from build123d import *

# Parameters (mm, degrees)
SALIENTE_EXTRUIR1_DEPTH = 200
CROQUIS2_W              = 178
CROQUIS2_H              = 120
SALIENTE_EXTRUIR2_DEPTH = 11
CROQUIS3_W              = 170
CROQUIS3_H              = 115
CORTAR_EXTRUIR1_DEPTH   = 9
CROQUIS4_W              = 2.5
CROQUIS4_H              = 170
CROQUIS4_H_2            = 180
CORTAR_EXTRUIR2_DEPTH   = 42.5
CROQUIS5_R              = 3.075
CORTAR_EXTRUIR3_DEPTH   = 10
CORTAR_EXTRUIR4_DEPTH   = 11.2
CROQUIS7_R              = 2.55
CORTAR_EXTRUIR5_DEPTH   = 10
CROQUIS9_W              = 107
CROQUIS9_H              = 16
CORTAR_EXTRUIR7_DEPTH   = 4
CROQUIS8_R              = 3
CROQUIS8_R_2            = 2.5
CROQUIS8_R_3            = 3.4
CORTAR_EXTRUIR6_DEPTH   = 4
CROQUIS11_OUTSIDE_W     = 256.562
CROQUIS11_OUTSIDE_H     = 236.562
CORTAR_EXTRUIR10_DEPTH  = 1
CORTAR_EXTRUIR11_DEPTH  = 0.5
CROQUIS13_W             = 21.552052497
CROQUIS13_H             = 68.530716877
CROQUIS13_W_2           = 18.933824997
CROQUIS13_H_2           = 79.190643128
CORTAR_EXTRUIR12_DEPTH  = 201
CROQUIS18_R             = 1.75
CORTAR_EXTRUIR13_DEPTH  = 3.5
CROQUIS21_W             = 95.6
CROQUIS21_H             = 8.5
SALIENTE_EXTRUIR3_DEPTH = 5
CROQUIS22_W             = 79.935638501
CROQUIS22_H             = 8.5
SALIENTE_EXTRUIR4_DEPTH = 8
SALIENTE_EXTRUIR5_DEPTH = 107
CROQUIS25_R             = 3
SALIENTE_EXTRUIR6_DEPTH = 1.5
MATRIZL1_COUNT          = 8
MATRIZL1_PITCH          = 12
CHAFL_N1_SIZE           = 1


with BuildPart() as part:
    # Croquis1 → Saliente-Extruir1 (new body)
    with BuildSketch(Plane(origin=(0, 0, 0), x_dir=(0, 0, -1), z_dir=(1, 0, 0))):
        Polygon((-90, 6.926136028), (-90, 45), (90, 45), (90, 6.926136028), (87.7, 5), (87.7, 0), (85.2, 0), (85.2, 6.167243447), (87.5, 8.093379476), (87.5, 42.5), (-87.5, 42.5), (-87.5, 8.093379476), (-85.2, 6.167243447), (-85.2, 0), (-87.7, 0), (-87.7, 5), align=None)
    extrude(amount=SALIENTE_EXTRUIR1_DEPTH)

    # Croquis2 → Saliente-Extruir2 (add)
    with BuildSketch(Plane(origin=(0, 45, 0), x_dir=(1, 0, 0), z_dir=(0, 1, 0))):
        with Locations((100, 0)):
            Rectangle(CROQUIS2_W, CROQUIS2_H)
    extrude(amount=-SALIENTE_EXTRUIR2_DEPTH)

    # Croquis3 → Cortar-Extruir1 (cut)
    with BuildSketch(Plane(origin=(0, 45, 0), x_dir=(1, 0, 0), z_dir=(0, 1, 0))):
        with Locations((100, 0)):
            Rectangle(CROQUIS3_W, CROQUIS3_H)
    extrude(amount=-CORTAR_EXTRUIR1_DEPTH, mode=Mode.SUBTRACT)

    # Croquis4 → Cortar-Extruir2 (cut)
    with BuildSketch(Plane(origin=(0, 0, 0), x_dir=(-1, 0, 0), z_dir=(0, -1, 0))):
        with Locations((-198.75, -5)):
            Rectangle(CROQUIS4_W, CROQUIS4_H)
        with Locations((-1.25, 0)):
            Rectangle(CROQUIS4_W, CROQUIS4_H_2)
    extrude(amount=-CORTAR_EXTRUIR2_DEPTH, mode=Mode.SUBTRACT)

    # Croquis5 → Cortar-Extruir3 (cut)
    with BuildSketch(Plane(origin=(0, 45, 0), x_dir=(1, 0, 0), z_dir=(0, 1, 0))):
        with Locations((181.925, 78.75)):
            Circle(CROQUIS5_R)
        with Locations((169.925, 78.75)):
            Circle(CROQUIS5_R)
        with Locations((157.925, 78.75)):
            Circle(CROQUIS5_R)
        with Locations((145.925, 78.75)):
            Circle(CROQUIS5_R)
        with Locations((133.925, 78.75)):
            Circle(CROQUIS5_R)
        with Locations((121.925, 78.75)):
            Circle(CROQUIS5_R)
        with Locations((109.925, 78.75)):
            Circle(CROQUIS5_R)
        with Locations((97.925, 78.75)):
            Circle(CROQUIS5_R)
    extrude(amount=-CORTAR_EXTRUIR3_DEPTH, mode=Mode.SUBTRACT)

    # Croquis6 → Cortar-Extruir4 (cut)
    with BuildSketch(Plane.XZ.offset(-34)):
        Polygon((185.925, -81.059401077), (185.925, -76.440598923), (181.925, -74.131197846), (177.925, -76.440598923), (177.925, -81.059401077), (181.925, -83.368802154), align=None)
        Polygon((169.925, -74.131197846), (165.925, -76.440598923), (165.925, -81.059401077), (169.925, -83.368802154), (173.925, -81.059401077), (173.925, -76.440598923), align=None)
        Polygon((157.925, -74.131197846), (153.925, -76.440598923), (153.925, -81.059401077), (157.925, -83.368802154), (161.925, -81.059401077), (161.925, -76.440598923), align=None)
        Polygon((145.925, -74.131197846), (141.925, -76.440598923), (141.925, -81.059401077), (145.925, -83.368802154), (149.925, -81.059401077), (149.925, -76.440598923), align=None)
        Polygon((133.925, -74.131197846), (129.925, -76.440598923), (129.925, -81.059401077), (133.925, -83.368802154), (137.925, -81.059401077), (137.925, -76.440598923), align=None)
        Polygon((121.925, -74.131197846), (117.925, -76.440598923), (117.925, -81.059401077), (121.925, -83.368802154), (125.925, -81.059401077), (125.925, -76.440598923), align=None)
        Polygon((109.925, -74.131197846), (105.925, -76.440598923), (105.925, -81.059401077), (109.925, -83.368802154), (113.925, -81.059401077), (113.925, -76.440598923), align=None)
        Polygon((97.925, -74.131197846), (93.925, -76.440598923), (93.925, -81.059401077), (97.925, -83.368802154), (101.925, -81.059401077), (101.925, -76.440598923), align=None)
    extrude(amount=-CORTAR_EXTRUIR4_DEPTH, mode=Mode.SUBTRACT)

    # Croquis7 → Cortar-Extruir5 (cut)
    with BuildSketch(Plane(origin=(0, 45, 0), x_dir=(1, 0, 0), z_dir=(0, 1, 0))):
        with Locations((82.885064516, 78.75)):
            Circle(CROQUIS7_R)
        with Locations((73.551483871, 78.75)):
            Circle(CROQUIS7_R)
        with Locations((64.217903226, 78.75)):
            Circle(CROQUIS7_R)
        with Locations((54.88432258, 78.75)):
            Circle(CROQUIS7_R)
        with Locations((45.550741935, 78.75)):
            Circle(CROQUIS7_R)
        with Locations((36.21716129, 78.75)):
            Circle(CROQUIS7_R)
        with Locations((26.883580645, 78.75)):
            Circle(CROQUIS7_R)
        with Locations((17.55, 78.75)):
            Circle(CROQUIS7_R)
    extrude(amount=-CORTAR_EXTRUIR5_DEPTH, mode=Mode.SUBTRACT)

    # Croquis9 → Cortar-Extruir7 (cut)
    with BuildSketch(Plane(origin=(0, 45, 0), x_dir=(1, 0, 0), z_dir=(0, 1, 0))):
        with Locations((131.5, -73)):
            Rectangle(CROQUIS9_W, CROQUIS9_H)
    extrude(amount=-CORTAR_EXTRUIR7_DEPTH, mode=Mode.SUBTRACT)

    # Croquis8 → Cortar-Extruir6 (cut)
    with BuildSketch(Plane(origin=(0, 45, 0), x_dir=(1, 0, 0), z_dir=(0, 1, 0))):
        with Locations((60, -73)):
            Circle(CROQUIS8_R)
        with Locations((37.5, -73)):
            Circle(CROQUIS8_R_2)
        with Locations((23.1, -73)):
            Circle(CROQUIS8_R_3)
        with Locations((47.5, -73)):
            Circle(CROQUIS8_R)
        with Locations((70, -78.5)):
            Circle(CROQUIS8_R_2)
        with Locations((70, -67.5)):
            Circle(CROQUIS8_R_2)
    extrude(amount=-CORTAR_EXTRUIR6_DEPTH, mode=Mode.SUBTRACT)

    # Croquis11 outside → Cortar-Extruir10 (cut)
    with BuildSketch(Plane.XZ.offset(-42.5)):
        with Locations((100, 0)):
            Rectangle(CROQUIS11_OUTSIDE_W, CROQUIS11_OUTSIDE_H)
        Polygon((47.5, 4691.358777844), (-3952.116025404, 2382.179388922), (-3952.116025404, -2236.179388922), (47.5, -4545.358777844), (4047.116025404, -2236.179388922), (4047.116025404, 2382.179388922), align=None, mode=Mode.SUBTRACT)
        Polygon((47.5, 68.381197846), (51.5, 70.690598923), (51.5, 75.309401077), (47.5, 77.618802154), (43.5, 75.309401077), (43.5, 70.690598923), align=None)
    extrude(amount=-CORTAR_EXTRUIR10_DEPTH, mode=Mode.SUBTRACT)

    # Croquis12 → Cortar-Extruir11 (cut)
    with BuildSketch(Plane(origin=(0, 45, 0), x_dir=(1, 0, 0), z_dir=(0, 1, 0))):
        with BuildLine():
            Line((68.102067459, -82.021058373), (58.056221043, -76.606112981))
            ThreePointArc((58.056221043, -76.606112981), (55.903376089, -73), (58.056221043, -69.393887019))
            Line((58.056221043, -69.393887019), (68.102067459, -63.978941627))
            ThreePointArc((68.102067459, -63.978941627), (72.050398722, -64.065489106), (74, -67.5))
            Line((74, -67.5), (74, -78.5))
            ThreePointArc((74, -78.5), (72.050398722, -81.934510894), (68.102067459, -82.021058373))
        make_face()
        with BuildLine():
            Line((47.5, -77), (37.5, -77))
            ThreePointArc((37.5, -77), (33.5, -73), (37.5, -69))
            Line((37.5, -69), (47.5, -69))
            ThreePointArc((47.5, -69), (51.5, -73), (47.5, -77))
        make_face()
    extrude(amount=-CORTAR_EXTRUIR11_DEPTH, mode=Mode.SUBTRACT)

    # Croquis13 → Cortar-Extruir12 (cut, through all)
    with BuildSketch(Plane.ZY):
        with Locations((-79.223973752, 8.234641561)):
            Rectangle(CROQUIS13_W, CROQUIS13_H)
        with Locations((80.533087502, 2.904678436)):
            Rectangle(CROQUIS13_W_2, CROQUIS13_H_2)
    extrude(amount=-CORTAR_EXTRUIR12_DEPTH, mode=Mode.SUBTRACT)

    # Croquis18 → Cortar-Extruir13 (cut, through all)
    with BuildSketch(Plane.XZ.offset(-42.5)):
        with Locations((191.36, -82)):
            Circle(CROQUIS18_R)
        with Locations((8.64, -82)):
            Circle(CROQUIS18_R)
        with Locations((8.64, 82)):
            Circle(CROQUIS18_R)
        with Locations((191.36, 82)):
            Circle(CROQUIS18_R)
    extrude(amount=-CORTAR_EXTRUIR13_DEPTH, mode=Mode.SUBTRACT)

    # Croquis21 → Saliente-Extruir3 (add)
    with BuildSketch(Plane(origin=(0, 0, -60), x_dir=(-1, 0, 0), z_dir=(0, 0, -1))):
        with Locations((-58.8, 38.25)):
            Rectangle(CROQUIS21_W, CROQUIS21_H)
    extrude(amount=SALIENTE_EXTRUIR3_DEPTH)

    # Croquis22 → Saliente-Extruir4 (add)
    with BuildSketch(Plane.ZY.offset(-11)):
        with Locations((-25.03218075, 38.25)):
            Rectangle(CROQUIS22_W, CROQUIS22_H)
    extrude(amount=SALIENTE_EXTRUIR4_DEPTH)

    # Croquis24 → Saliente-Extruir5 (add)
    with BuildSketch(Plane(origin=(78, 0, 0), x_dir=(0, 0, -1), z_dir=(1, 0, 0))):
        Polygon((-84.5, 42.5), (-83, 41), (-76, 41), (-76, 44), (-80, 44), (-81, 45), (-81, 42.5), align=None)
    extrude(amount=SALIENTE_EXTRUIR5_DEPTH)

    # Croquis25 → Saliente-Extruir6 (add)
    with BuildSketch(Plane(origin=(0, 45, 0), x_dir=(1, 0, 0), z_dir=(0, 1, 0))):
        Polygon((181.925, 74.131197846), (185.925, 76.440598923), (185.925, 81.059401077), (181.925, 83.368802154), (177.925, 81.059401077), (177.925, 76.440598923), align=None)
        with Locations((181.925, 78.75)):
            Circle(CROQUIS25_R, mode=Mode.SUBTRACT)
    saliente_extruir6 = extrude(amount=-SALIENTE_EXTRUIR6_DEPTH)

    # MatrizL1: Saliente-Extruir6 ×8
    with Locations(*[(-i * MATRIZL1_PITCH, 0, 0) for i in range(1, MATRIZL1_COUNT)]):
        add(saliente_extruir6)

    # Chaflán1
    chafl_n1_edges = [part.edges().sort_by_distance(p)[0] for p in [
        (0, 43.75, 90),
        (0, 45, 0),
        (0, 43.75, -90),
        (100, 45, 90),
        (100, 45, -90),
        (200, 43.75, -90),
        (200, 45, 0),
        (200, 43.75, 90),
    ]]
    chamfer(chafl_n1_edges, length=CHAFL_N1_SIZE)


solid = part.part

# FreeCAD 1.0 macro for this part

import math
import FreeCAD as App
import Part
import Sketcher
Q = App.Units.Quantity


def edges_at(feature, points):
    """Names of the edges that pass closest to the given points."""
    edges = feature.Shape.Edges
    near = lambda p: min(range(len(edges)), key=lambda i: edges[i].distToShape(Part.Vertex(*p))[0])
    return sorted({f"Edge{near(p) + 1}" for p in points})

doc = App.newDocument("Part")
body = doc.addObject("PartDesign::Body", "Body")

sketch1 = doc.addObject("Sketcher::SketchObject", "Sketch")
body.addObject(sketch1)
sketch1.AttachmentSupport = (doc.YZ_Plane, [""])
sketch1.MapMode = "FlatFace"
sketch1.addGeometry([
    Part.LineSegment(App.Vector(45, 90, 0), App.Vector(6.9, 90, 0)),
    Part.LineSegment(App.Vector(6.9, 90, 0), App.Vector(5, 87.7, 0)),
    Part.LineSegment(App.Vector(5, 87.7, 0), App.Vector(0, 87.7, 0)),
    Part.LineSegment(App.Vector(0, 87.7, 0), App.Vector(0, 85.2, 0)),
    Part.LineSegment(App.Vector(0, 85.2, 0), App.Vector(6.2, 85.2, 0)),
    Part.LineSegment(App.Vector(6.2, 85.2, 0), App.Vector(8.1, 87.5, 0)),
    Part.LineSegment(App.Vector(8.1, 87.5, 0), App.Vector(42.5, 87.5, 0)),
    Part.LineSegment(App.Vector(42.5, 87.5, 0), App.Vector(42.5, -87.5, 0)),
    Part.LineSegment(App.Vector(42.5, -87.5, 0), App.Vector(8.1, -87.5, 0)),
    Part.LineSegment(App.Vector(8.1, -87.5, 0), App.Vector(6.2, -85.2, 0)),
    Part.LineSegment(App.Vector(6.2, -85.2, 0), App.Vector(0, -85.2, 0)),
    Part.LineSegment(App.Vector(0, -85.2, 0), App.Vector(0, -87.7, 0)),
    Part.LineSegment(App.Vector(0, -87.7, 0), App.Vector(5, -87.7, 0)),
    Part.LineSegment(App.Vector(5, -87.7, 0), App.Vector(6.9, -90, 0)),
    Part.LineSegment(App.Vector(6.9, -90, 0), App.Vector(45, -90, 0)),
    Part.LineSegment(App.Vector(45, -90, 0), App.Vector(45, 90, 0)),
], False)
sketch1.addConstraint([
    Sketcher.Constraint("Coincident", 0, 2, 1, 1),
    Sketcher.Constraint("Coincident", 1, 2, 2, 1),
    Sketcher.Constraint("Coincident", 2, 2, 3, 1),
    Sketcher.Constraint("Coincident", 3, 2, 4, 1),
    Sketcher.Constraint("Coincident", 4, 2, 5, 1),
    Sketcher.Constraint("Coincident", 5, 2, 6, 1),
    Sketcher.Constraint("Coincident", 6, 2, 7, 1),
    Sketcher.Constraint("Coincident", 7, 2, 8, 1),
    Sketcher.Constraint("Coincident", 8, 2, 9, 1),
    Sketcher.Constraint("Coincident", 9, 2, 10, 1),
    Sketcher.Constraint("Coincident", 10, 2, 11, 1),
    Sketcher.Constraint("Coincident", 11, 2, 12, 1),
    Sketcher.Constraint("Coincident", 12, 2, 13, 1),
    Sketcher.Constraint("Coincident", 13, 2, 14, 1),
    Sketcher.Constraint("Coincident", 14, 2, 15, 1),
    Sketcher.Constraint("Coincident", 15, 2, 0, 1),
    Sketcher.Constraint("Horizontal", 0),
    Sketcher.Constraint("Horizontal", 2),
    Sketcher.Constraint("Vertical", 3),
    Sketcher.Constraint("Horizontal", 4),
    Sketcher.Constraint("Horizontal", 6),
    Sketcher.Constraint("Vertical", 7),
    Sketcher.Constraint("Horizontal", 8),
    Sketcher.Constraint("Horizontal", 10),
    Sketcher.Constraint("Vertical", 11),
    Sketcher.Constraint("Horizontal", 12),
    Sketcher.Constraint("Horizontal", 14),
    Sketcher.Constraint("Vertical", 15),
    Sketcher.Constraint("Symmetric", 3, 2, 10, 2, -1, 1),
    Sketcher.Constraint("Symmetric", 5, 2, 8, 2, -1),
    Sketcher.Constraint("Symmetric", 2, 2, 11, 2, -1),
    Sketcher.Constraint("Symmetric", 0, 2, 13, 2, -1),
    Sketcher.Constraint("Parallel", 1, 5),
    Sketcher.Constraint("Parallel", 9, 13),
    Sketcher.Constraint("Vertical", 4, 2, 9, 2),
    Sketcher.Constraint("Equal", 1, 5),
    Sketcher.Constraint("DistanceX", 2, 2, 2, 1, 5.0),
    Sketcher.Constraint("DistanceY", 7, 2, 7, 1, 175.0),
    Sketcher.Constraint("DistanceY", 15, 1, 15, 2, 180.0),
    Sketcher.Constraint("Distance", 1, 3.0),
    Sketcher.Constraint("DistanceX", -1, 1, 14, 2, 45.0),
    Sketcher.Constraint("DistanceY", -1, 1, 1, 2, 87.7),
    Sketcher.Constraint("DistanceX", -1, 1, 6, 2, 42.5),
    Sketcher.Constraint("DistanceX", 6, 1, 6, 2, 34.406621),
])
pad1 = doc.addObject("PartDesign::Pad", "Pad")
body.addObject(pad1)
pad1.Profile = sketch1
pad1.Length = 200

sketch2 = doc.addObject("Sketcher::SketchObject", "Sketch001")
body.addObject(sketch2)
sketch2.AttachmentSupport = (doc.XZ_Plane, [""])
sketch2.MapMode = "FlatFace"
sketch2.AttachmentOffset = App.Placement(App.Vector(0, 0, -45), App.Rotation())
sketch2.addGeometry([
    Part.LineSegment(App.Vector(11, -60, 0), App.Vector(11, 60, 0)),
    Part.LineSegment(App.Vector(11, 60, 0), App.Vector(189, 60, 0)),
    Part.LineSegment(App.Vector(189, 60, 0), App.Vector(189, -60, 0)),
    Part.LineSegment(App.Vector(189, -60, 0), App.Vector(11, -60, 0)),
], False)
sketch2.addConstraint([
    Sketcher.Constraint("Coincident", 0, 2, 1, 1),
    Sketcher.Constraint("Coincident", 1, 2, 2, 1),
    Sketcher.Constraint("Coincident", 2, 2, 3, 1),
    Sketcher.Constraint("Coincident", 3, 2, 0, 1),
    Sketcher.Constraint("Vertical", 0),
    Sketcher.Constraint("Horizontal", 1),
    Sketcher.Constraint("Vertical", 2),
    Sketcher.Constraint("Horizontal", 3),
    Sketcher.Constraint("DistanceX", 1, 1, 1, 2, 178.0),
    Sketcher.Constraint("DistanceY", 0, 1, 0, 2, 120.0),
    Sketcher.Constraint("DistanceX", -1, 1, 0, 2, 11.0),
    Sketcher.Constraint("DistanceY", -1, 1, 0, 2, 60.0),
])
pad2 = doc.addObject("PartDesign::Pad", "Pad001")
body.addObject(pad2)
pad2.Profile = sketch2
pad2.Length = 11

sketch3 = doc.addObject("Sketcher::SketchObject", "Sketch002")
body.addObject(sketch3)
sketch3.AttachmentSupport = (doc.XZ_Plane, [""])
sketch3.MapMode = "FlatFace"
sketch3.AttachmentOffset = App.Placement(App.Vector(0, 0, -45), App.Rotation())
sketch3.addGeometry([
    Part.LineSegment(App.Vector(15, -58, 0), App.Vector(15, 58, 0)),
    Part.LineSegment(App.Vector(15, 58, 0), App.Vector(185, 58, 0)),
    Part.LineSegment(App.Vector(185, 58, 0), App.Vector(185, -58, 0)),
    Part.LineSegment(App.Vector(185, -58, 0), App.Vector(15, -58, 0)),
], False)
sketch3.addConstraint([
    Sketcher.Constraint("Coincident", 0, 2, 1, 1),
    Sketcher.Constraint("Coincident", 1, 2, 2, 1),
    Sketcher.Constraint("Coincident", 2, 2, 3, 1),
    Sketcher.Constraint("Coincident", 3, 2, 0, 1),
    Sketcher.Constraint("Vertical", 0),
    Sketcher.Constraint("Horizontal", 1),
    Sketcher.Constraint("Vertical", 2),
    Sketcher.Constraint("Horizontal", 3),
    Sketcher.Constraint("DistanceX", 1, 1, 1, 2, 170.0),
    Sketcher.Constraint("DistanceY", 0, 1, 0, 2, 115.0),
    Sketcher.Constraint("DistanceX", -1, 1, 0, 2, 15.0),
    Sketcher.Constraint("DistanceY", -1, 1, 0, 2, 57.5),
])
pocket1 = doc.addObject("PartDesign::Pocket", "Pocket")
body.addObject(pocket1)
pocket1.Profile = sketch3
pocket1.Length = 9
pocket1.Reversed = True

sketch4 = doc.addObject("Sketcher::SketchObject", "Sketch003")
body.addObject(sketch4)
sketch4.AttachmentSupport = (doc.XZ_Plane, [""])
sketch4.MapMode = "FlatFace"
sketch4.addGeometry([
    Part.LineSegment(App.Vector(200, -80, 0), App.Vector(200, 90, 0)),
    Part.LineSegment(App.Vector(200, 90, 0), App.Vector(197.5, 90, 0)),
    Part.LineSegment(App.Vector(197.5, 90, 0), App.Vector(197.5, -80, 0)),
    Part.LineSegment(App.Vector(197.5, -80, 0), App.Vector(200, -80, 0)),
    Part.LineSegment(App.Vector(2.5, -90, 0), App.Vector(2.5, 90, 0)),
    Part.LineSegment(App.Vector(2.5, 90, 0), App.Vector(0, 90, 0)),
    Part.LineSegment(App.Vector(0, 90, 0), App.Vector(0, -90, 0)),
    Part.LineSegment(App.Vector(0, -90, 0), App.Vector(2.5, -90, 0)),
], False)
sketch4.addConstraint([
    Sketcher.Constraint("Coincident", 0, 2, 1, 1),
    Sketcher.Constraint("Coincident", 1, 2, 2, 1),
    Sketcher.Constraint("Coincident", 2, 2, 3, 1),
    Sketcher.Constraint("Coincident", 3, 2, 0, 1),
    Sketcher.Constraint("Coincident", 4, 2, 5, 1),
    Sketcher.Constraint("Coincident", 5, 2, 6, 1),
    Sketcher.Constraint("Coincident", 6, 2, 7, 1),
    Sketcher.Constraint("Coincident", 7, 2, 4, 1),
    Sketcher.Constraint("Vertical", 0),
    Sketcher.Constraint("Horizontal", 1),
    Sketcher.Constraint("Vertical", 2),
    Sketcher.Constraint("Horizontal", 3),
    Sketcher.Constraint("Vertical", 4),
    Sketcher.Constraint("Horizontal", 5),
    Sketcher.Constraint("Vertical", 6),
    Sketcher.Constraint("Horizontal", 7),
    Sketcher.Constraint("Symmetric", 5, 2, 6, 2, -1, 1),
    Sketcher.Constraint("Horizontal", 1, 2, 4, 2),
    Sketcher.Constraint("Equal", 3, 5),
    Sketcher.Constraint("DistanceY", 0, 1, 0, 2, 170.0),
    Sketcher.Constraint("DistanceY", 4, 1, 4, 2, 180.0),
    Sketcher.Constraint("DistanceX", 1, 2, 1, 1, 2.5),
    Sketcher.Constraint("DistanceX", -1, 1, 0, 2, 200.0),
])
pocket2 = doc.addObject("PartDesign::Pocket", "Pocket001")
body.addObject(pocket2)
pocket2.Profile = sketch4
pocket2.Length = 42.5

sketch5 = doc.addObject("Sketcher::SketchObject", "Sketch004")
body.addObject(sketch5)
sketch5.AttachmentSupport = (doc.XZ_Plane, [""])
sketch5.MapMode = "FlatFace"
sketch5.AttachmentOffset = App.Placement(App.Vector(0, 0, -45), App.Rotation())
sketch5.addGeometry([
    Part.Circle(App.Vector(181.9, -78.8, 0), App.Vector(0, 0, 1), 3.1),
    Part.Circle(App.Vector(169.9, -78.8, 0), App.Vector(0, 0, 1), 3.1),
    Part.Circle(App.Vector(157.9, -78.8, 0), App.Vector(0, 0, 1), 3.1),
    Part.Circle(App.Vector(145.9, -78.8, 0), App.Vector(0, 0, 1), 3.1),
    Part.Circle(App.Vector(133.9, -78.8, 0), App.Vector(0, 0, 1), 3.1),
    Part.Circle(App.Vector(121.9, -78.8, 0), App.Vector(0, 0, 1), 3.1),
    Part.Circle(App.Vector(109.9, -78.8, 0), App.Vector(0, 0, 1), 3.1),
    Part.Circle(App.Vector(97.9, -78.8, 0), App.Vector(0, 0, 1), 3.1),
], False)
sketch5.addConstraint([
    Sketcher.Constraint("Equal", 0, 1),
    Sketcher.Constraint("Equal", 1, 2),
    Sketcher.Constraint("Equal", 2, 3),
    Sketcher.Constraint("Equal", 3, 4),
    Sketcher.Constraint("Equal", 4, 5),
    Sketcher.Constraint("Equal", 5, 6),
    Sketcher.Constraint("Equal", 6, 7),
    Sketcher.Constraint("Horizontal", 0, 3, 1, 3),
    Sketcher.Constraint("Horizontal", 1, 3, 2, 3),
    Sketcher.Constraint("Horizontal", 2, 3, 3, 3),
    Sketcher.Constraint("Horizontal", 3, 3, 4, 3),
    Sketcher.Constraint("Horizontal", 4, 3, 5, 3),
    Sketcher.Constraint("Horizontal", 5, 3, 6, 3),
    Sketcher.Constraint("Horizontal", 6, 3, 7, 3),
    Sketcher.Constraint("Diameter", 0, 6.15),
    Sketcher.Constraint("DistanceX", 1, 3, 0, 3, 12.0),
    Sketcher.Constraint("DistanceX", 2, 3, 1, 3, 12.0),
    Sketcher.Constraint("DistanceX", 3, 3, 2, 3, 12.0),
    Sketcher.Constraint("DistanceX", 4, 3, 3, 3, 12.0),
    Sketcher.Constraint("DistanceX", 5, 3, 4, 3, 12.0),
    Sketcher.Constraint("DistanceX", 6, 3, 5, 3, 12.0),
    Sketcher.Constraint("DistanceX", 7, 3, 6, 3, 12.0),
    Sketcher.Constraint("DistanceY", 0, 3, -1, 1, 78.75),
    Sketcher.Constraint("DistanceX", -1, 1, 0, 3, 181.925),
])
pocket3 = doc.addObject("PartDesign::Pocket", "Pocket002")
body.addObject(pocket3)
pocket3.Profile = sketch5
pocket3.Length = 10
pocket3.Reversed = True

sketch6 = doc.addObject("Sketcher::SketchObject", "Sketch005")
body.addObject(sketch6)
sketch6.AttachmentSupport = (doc.XZ_Plane, [""])
sketch6.MapMode = "FlatFace"
sketch6.AttachmentOffset = App.Placement(App.Vector(0, 0, -34), App.Rotation())
sketch6.addGeometry([
    Part.LineSegment(App.Vector(185.9, -81.1, 0), App.Vector(185.9, -76.4, 0)),
    Part.LineSegment(App.Vector(185.9, -76.4, 0), App.Vector(181.9, -74.1, 0)),
    Part.LineSegment(App.Vector(181.9, -74.1, 0), App.Vector(177.9, -76.4, 0)),
    Part.LineSegment(App.Vector(177.9, -76.4, 0), App.Vector(177.9, -81.1, 0)),
    Part.LineSegment(App.Vector(177.9, -81.1, 0), App.Vector(181.9, -83.4, 0)),
    Part.LineSegment(App.Vector(181.9, -83.4, 0), App.Vector(185.9, -81.1, 0)),
    Part.LineSegment(App.Vector(169.9, -74.1, 0), App.Vector(165.9, -76.4, 0)),
    Part.LineSegment(App.Vector(165.9, -76.4, 0), App.Vector(165.9, -81.1, 0)),
    Part.LineSegment(App.Vector(165.9, -81.1, 0), App.Vector(169.9, -83.4, 0)),
    Part.LineSegment(App.Vector(169.9, -83.4, 0), App.Vector(173.9, -81.1, 0)),
    Part.LineSegment(App.Vector(173.9, -81.1, 0), App.Vector(173.9, -76.4, 0)),
    Part.LineSegment(App.Vector(173.9, -76.4, 0), App.Vector(169.9, -74.1, 0)),
    Part.LineSegment(App.Vector(157.9, -74.1, 0), App.Vector(153.9, -76.4, 0)),
    Part.LineSegment(App.Vector(153.9, -76.4, 0), App.Vector(153.9, -81.1, 0)),
    Part.LineSegment(App.Vector(153.9, -81.1, 0), App.Vector(157.9, -83.4, 0)),
    Part.LineSegment(App.Vector(157.9, -83.4, 0), App.Vector(161.9, -81.1, 0)),
    Part.LineSegment(App.Vector(161.9, -81.1, 0), App.Vector(161.9, -76.4, 0)),
    Part.LineSegment(App.Vector(161.9, -76.4, 0), App.Vector(157.9, -74.1, 0)),
    Part.LineSegment(App.Vector(145.9, -74.1, 0), App.Vector(141.9, -76.4, 0)),
    Part.LineSegment(App.Vector(141.9, -76.4, 0), App.Vector(141.9, -81.1, 0)),
    Part.LineSegment(App.Vector(141.9, -81.1, 0), App.Vector(145.9, -83.4, 0)),
    Part.LineSegment(App.Vector(145.9, -83.4, 0), App.Vector(149.9, -81.1, 0)),
    Part.LineSegment(App.Vector(149.9, -81.1, 0), App.Vector(149.9, -76.4, 0)),
    Part.LineSegment(App.Vector(149.9, -76.4, 0), App.Vector(145.9, -74.1, 0)),
    Part.LineSegment(App.Vector(133.9, -74.1, 0), App.Vector(129.9, -76.4, 0)),
    Part.LineSegment(App.Vector(129.9, -76.4, 0), App.Vector(129.9, -81.1, 0)),
    Part.LineSegment(App.Vector(129.9, -81.1, 0), App.Vector(133.9, -83.4, 0)),
    Part.LineSegment(App.Vector(133.9, -83.4, 0), App.Vector(137.9, -81.1, 0)),
    Part.LineSegment(App.Vector(137.9, -81.1, 0), App.Vector(137.9, -76.4, 0)),
    Part.LineSegment(App.Vector(137.9, -76.4, 0), App.Vector(133.9, -74.1, 0)),
    Part.LineSegment(App.Vector(121.9, -74.1, 0), App.Vector(117.9, -76.4, 0)),
    Part.LineSegment(App.Vector(117.9, -76.4, 0), App.Vector(117.9, -81.1, 0)),
    Part.LineSegment(App.Vector(117.9, -81.1, 0), App.Vector(121.9, -83.4, 0)),
    Part.LineSegment(App.Vector(121.9, -83.4, 0), App.Vector(125.9, -81.1, 0)),
    Part.LineSegment(App.Vector(125.9, -81.1, 0), App.Vector(125.9, -76.4, 0)),
    Part.LineSegment(App.Vector(125.9, -76.4, 0), App.Vector(121.9, -74.1, 0)),
    Part.LineSegment(App.Vector(109.9, -74.1, 0), App.Vector(105.9, -76.4, 0)),
    Part.LineSegment(App.Vector(105.9, -76.4, 0), App.Vector(105.9, -81.1, 0)),
    Part.LineSegment(App.Vector(105.9, -81.1, 0), App.Vector(109.9, -83.4, 0)),
    Part.LineSegment(App.Vector(109.9, -83.4, 0), App.Vector(113.9, -81.1, 0)),
    Part.LineSegment(App.Vector(113.9, -81.1, 0), App.Vector(113.9, -76.4, 0)),
    Part.LineSegment(App.Vector(113.9, -76.4, 0), App.Vector(109.9, -74.1, 0)),
    Part.LineSegment(App.Vector(97.9, -74.1, 0), App.Vector(93.9, -76.4, 0)),
    Part.LineSegment(App.Vector(93.9, -76.4, 0), App.Vector(93.9, -81.1, 0)),
    Part.LineSegment(App.Vector(93.9, -81.1, 0), App.Vector(97.9, -83.4, 0)),
    Part.LineSegment(App.Vector(97.9, -83.4, 0), App.Vector(101.9, -81.1, 0)),
    Part.LineSegment(App.Vector(101.9, -81.1, 0), App.Vector(101.9, -76.4, 0)),
    Part.LineSegment(App.Vector(101.9, -76.4, 0), App.Vector(97.9, -74.1, 0)),
], False)
sketch6.addConstraint([
    Sketcher.Constraint("Coincident", 0, 2, 1, 1),
    Sketcher.Constraint("Coincident", 1, 2, 2, 1),
    Sketcher.Constraint("Coincident", 2, 2, 3, 1),
    Sketcher.Constraint("Coincident", 3, 2, 4, 1),
    Sketcher.Constraint("Coincident", 4, 2, 5, 1),
    Sketcher.Constraint("Coincident", 5, 2, 0, 1),
    Sketcher.Constraint("Coincident", 6, 2, 7, 1),
    Sketcher.Constraint("Coincident", 7, 2, 8, 1),
    Sketcher.Constraint("Coincident", 8, 2, 9, 1),
    Sketcher.Constraint("Coincident", 9, 2, 10, 1),
    Sketcher.Constraint("Coincident", 10, 2, 11, 1),
    Sketcher.Constraint("Coincident", 11, 2, 6, 1),
    Sketcher.Constraint("Coincident", 12, 2, 13, 1),
    Sketcher.Constraint("Coincident", 13, 2, 14, 1),
    Sketcher.Constraint("Coincident", 14, 2, 15, 1),
    Sketcher.Constraint("Coincident", 15, 2, 16, 1),
    Sketcher.Constraint("Coincident", 16, 2, 17, 1),
    Sketcher.Constraint("Coincident", 17, 2, 12, 1),
    Sketcher.Constraint("Coincident", 18, 2, 19, 1),
    Sketcher.Constraint("Coincident", 19, 2, 20, 1),
    Sketcher.Constraint("Coincident", 20, 2, 21, 1),
    Sketcher.Constraint("Coincident", 21, 2, 22, 1),
    Sketcher.Constraint("Coincident", 22, 2, 23, 1),
    Sketcher.Constraint("Coincident", 23, 2, 18, 1),
    Sketcher.Constraint("Coincident", 24, 2, 25, 1),
    Sketcher.Constraint("Coincident", 25, 2, 26, 1),
    Sketcher.Constraint("Coincident", 26, 2, 27, 1),
    Sketcher.Constraint("Coincident", 27, 2, 28, 1),
    Sketcher.Constraint("Coincident", 28, 2, 29, 1),
    Sketcher.Constraint("Coincident", 29, 2, 24, 1),
    Sketcher.Constraint("Coincident", 30, 2, 31, 1),
    Sketcher.Constraint("Coincident", 31, 2, 32, 1),
    Sketcher.Constraint("Coincident", 32, 2, 33, 1),
    Sketcher.Constraint("Coincident", 33, 2, 34, 1),
    Sketcher.Constraint("Coincident", 34, 2, 35, 1),
    Sketcher.Constraint("Coincident", 35, 2, 30, 1),
    Sketcher.Constraint("Coincident", 36, 2, 37, 1),
    Sketcher.Constraint("Coincident", 37, 2, 38, 1),
    Sketcher.Constraint("Coincident", 38, 2, 39, 1),
    Sketcher.Constraint("Coincident", 39, 2, 40, 1),
    Sketcher.Constraint("Coincident", 40, 2, 41, 1),
    Sketcher.Constraint("Coincident", 41, 2, 36, 1),
    Sketcher.Constraint("Coincident", 42, 2, 43, 1),
    Sketcher.Constraint("Coincident", 43, 2, 44, 1),
    Sketcher.Constraint("Coincident", 44, 2, 45, 1),
    Sketcher.Constraint("Coincident", 45, 2, 46, 1),
    Sketcher.Constraint("Coincident", 46, 2, 47, 1),
    Sketcher.Constraint("Coincident", 47, 2, 42, 1),
    Sketcher.Constraint("Vertical", 0),
    Sketcher.Constraint("Vertical", 3),
    Sketcher.Constraint("Vertical", 7),
    Sketcher.Constraint("Vertical", 10),
    Sketcher.Constraint("Vertical", 13),
    Sketcher.Constraint("Vertical", 16),
    Sketcher.Constraint("Vertical", 19),
    Sketcher.Constraint("Vertical", 22),
    Sketcher.Constraint("Vertical", 25),
    Sketcher.Constraint("Vertical", 28),
    Sketcher.Constraint("Vertical", 31),
    Sketcher.Constraint("Vertical", 34),
    Sketcher.Constraint("Vertical", 37),
    Sketcher.Constraint("Vertical", 40),
    Sketcher.Constraint("Vertical", 43),
    Sketcher.Constraint("Vertical", 46),
    Sketcher.Constraint("Parallel", 1, 4),
    Sketcher.Constraint("Parallel", 2, 5),
    Sketcher.Constraint("Parallel", 5, 6),
    Sketcher.Constraint("Parallel", 4, 8),
    Sketcher.Constraint("Parallel", 6, 9),
    Sketcher.Constraint("Parallel", 8, 11),
    Sketcher.Constraint("Parallel", 9, 12),
    Sketcher.Constraint("Parallel", 11, 14),
    Sketcher.Constraint("Parallel", 12, 15),
    Sketcher.Constraint("Parallel", 14, 17),
    Sketcher.Constraint("Parallel", 15, 18),
    Sketcher.Constraint("Parallel", 17, 20),
    Sketcher.Constraint("Parallel", 18, 21),
    Sketcher.Constraint("Parallel", 20, 23),
    Sketcher.Constraint("Parallel", 21, 24),
    Sketcher.Constraint("Parallel", 23, 26),
    Sketcher.Constraint("Parallel", 24, 27),
    Sketcher.Constraint("Parallel", 26, 29),
    Sketcher.Constraint("Parallel", 27, 30),
    Sketcher.Constraint("Parallel", 29, 32),
    Sketcher.Constraint("Parallel", 30, 33),
    Sketcher.Constraint("Parallel", 32, 35),
    Sketcher.Constraint("Parallel", 33, 36),
    Sketcher.Constraint("Parallel", 35, 38),
    Sketcher.Constraint("Parallel", 36, 39),
    Sketcher.Constraint("Parallel", 38, 41),
    Sketcher.Constraint("Parallel", 39, 42),
    Sketcher.Constraint("Parallel", 41, 44),
    Sketcher.Constraint("Parallel", 42, 45),
    Sketcher.Constraint("Parallel", 44, 47),
    Sketcher.Constraint("Horizontal", 0, 2, 2, 2),
    Sketcher.Constraint("Horizontal", 3, 2, 5, 2),
    Sketcher.Constraint("Horizontal", 2, 2, 6, 2),
    Sketcher.Constraint("Horizontal", 5, 2, 7, 2),
    Sketcher.Constraint("Horizontal", 4, 2, 8, 2),
    Sketcher.Constraint("Horizontal", 7, 2, 9, 2),
    Sketcher.Constraint("Horizontal", 6, 2, 10, 2),
    Sketcher.Constraint("Horizontal", 10, 2, 12, 2),
    Sketcher.Constraint("Horizontal", 9, 2, 13, 2),
    Sketcher.Constraint("Horizontal", 8, 2, 14, 2),
    Sketcher.Constraint("Horizontal", 13, 2, 15, 2),
    Sketcher.Constraint("Horizontal", 12, 2, 16, 2),
    Sketcher.Constraint("Horizontal", 16, 2, 18, 2),
    Sketcher.Constraint("Horizontal", 15, 2, 19, 2),
    Sketcher.Constraint("Horizontal", 14, 2, 20, 2),
    Sketcher.Constraint("Horizontal", 19, 2, 21, 2),
    Sketcher.Constraint("Horizontal", 18, 2, 22, 2),
    Sketcher.Constraint("Horizontal", 22, 2, 24, 2),
    Sketcher.Constraint("Horizontal", 21, 2, 25, 2),
    Sketcher.Constraint("Horizontal", 20, 2, 26, 2),
    Sketcher.Constraint("Horizontal", 25, 2, 27, 2),
    Sketcher.Constraint("Horizontal", 24, 2, 28, 2),
    Sketcher.Constraint("Horizontal", 28, 2, 30, 2),
    Sketcher.Constraint("Horizontal", 27, 2, 31, 2),
    Sketcher.Constraint("Horizontal", 26, 2, 32, 2),
    Sketcher.Constraint("Horizontal", 31, 2, 33, 2),
    Sketcher.Constraint("Horizontal", 30, 2, 34, 2),
    Sketcher.Constraint("Horizontal", 34, 2, 36, 2),
    Sketcher.Constraint("Horizontal", 33, 2, 37, 2),
    Sketcher.Constraint("Horizontal", 32, 2, 38, 2),
    Sketcher.Constraint("Horizontal", 37, 2, 39, 2),
    Sketcher.Constraint("Horizontal", 36, 2, 40, 2),
    Sketcher.Constraint("Horizontal", 40, 2, 42, 2),
    Sketcher.Constraint("Horizontal", 39, 2, 43, 2),
    Sketcher.Constraint("Horizontal", 38, 2, 44, 2),
    Sketcher.Constraint("Horizontal", 43, 2, 45, 2),
    Sketcher.Constraint("Horizontal", 42, 2, 46, 2),
    Sketcher.Constraint("Vertical", 1, 2, 4, 2),
    Sketcher.Constraint("Angle", 1, Q("150 deg")),
    Sketcher.Constraint("DistanceX", 1, 2, 0, 2, 4.0),
    Sketcher.Constraint("DistanceX", 6, 2, 2, 2, 12.0),
    Sketcher.Constraint("DistanceX", 12, 2, 6, 2, 12.0),
    Sketcher.Constraint("DistanceX", 18, 2, 12, 2, 12.0),
    Sketcher.Constraint("DistanceX", 24, 2, 18, 2, 12.0),
    Sketcher.Constraint("DistanceX", 30, 2, 24, 2, 12.0),
    Sketcher.Constraint("DistanceX", 36, 2, 30, 2, 12.0),
    Sketcher.Constraint("DistanceX", 42, 2, 36, 2, 12.0),
    Sketcher.Constraint("DistanceX", -1, 1, 0, 2, 185.925),
    Sketcher.Constraint("DistanceY", 0, 2, -1, 1, 76.440599),
    Sketcher.Constraint("DistanceY", 3, 2, -1, 1, 81.059401),
])
pocket4 = doc.addObject("PartDesign::Pocket", "Pocket003")
body.addObject(pocket4)
pocket4.Profile = sketch6
pocket4.Length = 11.2

sketch7 = doc.addObject("Sketcher::SketchObject", "Sketch006")
body.addObject(sketch7)
sketch7.AttachmentSupport = (doc.XZ_Plane, [""])
sketch7.MapMode = "FlatFace"
sketch7.AttachmentOffset = App.Placement(App.Vector(0, 0, -45), App.Rotation())
sketch7.addGeometry([
    Part.Circle(App.Vector(82.9, -78.8, 0), App.Vector(0, 0, 1), 2.5),
    Part.Circle(App.Vector(73.6, -78.8, 0), App.Vector(0, 0, 1), 2.5),
    Part.Circle(App.Vector(64.2, -78.8, 0), App.Vector(0, 0, 1), 2.5),
    Part.Circle(App.Vector(54.9, -78.8, 0), App.Vector(0, 0, 1), 2.5),
    Part.Circle(App.Vector(45.6, -78.8, 0), App.Vector(0, 0, 1), 2.5),
    Part.Circle(App.Vector(36.2, -78.8, 0), App.Vector(0, 0, 1), 2.5),
    Part.Circle(App.Vector(26.9, -78.8, 0), App.Vector(0, 0, 1), 2.5),
    Part.Circle(App.Vector(17.6, -78.8, 0), App.Vector(0, 0, 1), 2.5),
], False)
sketch7.addConstraint([
    Sketcher.Constraint("Equal", 0, 1),
    Sketcher.Constraint("Equal", 1, 2),
    Sketcher.Constraint("Equal", 2, 3),
    Sketcher.Constraint("Equal", 3, 4),
    Sketcher.Constraint("Equal", 4, 5),
    Sketcher.Constraint("Equal", 5, 6),
    Sketcher.Constraint("Equal", 6, 7),
    Sketcher.Constraint("Horizontal", 0, 3, 1, 3),
    Sketcher.Constraint("Horizontal", 1, 3, 2, 3),
    Sketcher.Constraint("Horizontal", 2, 3, 3, 3),
    Sketcher.Constraint("Horizontal", 3, 3, 4, 3),
    Sketcher.Constraint("Horizontal", 4, 3, 5, 3),
    Sketcher.Constraint("Horizontal", 5, 3, 6, 3),
    Sketcher.Constraint("Horizontal", 6, 3, 7, 3),
    Sketcher.Constraint("Diameter", 0, 5.1),
    Sketcher.Constraint("DistanceY", 0, 3, -1, 1, 78.75),
    Sketcher.Constraint("DistanceX", -1, 1, 7, 3, 17.55),
    Sketcher.Constraint("DistanceX", -1, 1, 4, 3, 45.550742),
    Sketcher.Constraint("DistanceX", -1, 1, 5, 3, 36.217161),
    Sketcher.Constraint("DistanceX", -1, 1, 6, 3, 26.883581),
    Sketcher.Constraint("DistanceX", 1, 3, 0, 3, 9.333581),
    Sketcher.Constraint("DistanceX", 2, 3, 1, 3, 9.333581),
    Sketcher.Constraint("DistanceX", 3, 3, 2, 3, 9.333581),
    Sketcher.Constraint("DistanceX", 4, 3, 3, 3, 9.333581),
])
pocket5 = doc.addObject("PartDesign::Pocket", "Pocket004")
body.addObject(pocket5)
pocket5.Profile = sketch7
pocket5.Length = 10
pocket5.Reversed = True

sketch8 = doc.addObject("Sketcher::SketchObject", "Sketch007")
body.addObject(sketch8)
sketch8.AttachmentSupport = (doc.XZ_Plane, [""])
sketch8.MapMode = "FlatFace"
sketch8.AttachmentOffset = App.Placement(App.Vector(0, 0, -45), App.Rotation())
sketch8.addGeometry([
    Part.LineSegment(App.Vector(78, 65, 0), App.Vector(78, 81, 0)),
    Part.LineSegment(App.Vector(78, 81, 0), App.Vector(185, 81, 0)),
    Part.LineSegment(App.Vector(185, 81, 0), App.Vector(185, 65, 0)),
    Part.LineSegment(App.Vector(185, 65, 0), App.Vector(78, 65, 0)),
], False)
sketch8.addConstraint([
    Sketcher.Constraint("Coincident", 0, 2, 1, 1),
    Sketcher.Constraint("Coincident", 1, 2, 2, 1),
    Sketcher.Constraint("Coincident", 2, 2, 3, 1),
    Sketcher.Constraint("Coincident", 3, 2, 0, 1),
    Sketcher.Constraint("Vertical", 0),
    Sketcher.Constraint("Horizontal", 1),
    Sketcher.Constraint("Vertical", 2),
    Sketcher.Constraint("Horizontal", 3),
    Sketcher.Constraint("DistanceX", 1, 1, 1, 2, 107.0),
    Sketcher.Constraint("DistanceY", 0, 1, 0, 2, 16.0),
    Sketcher.Constraint("DistanceX", -1, 1, 0, 2, 78.0),
    Sketcher.Constraint("DistanceY", -1, 1, 0, 2, 81.0),
])
pocket6 = doc.addObject("PartDesign::Pocket", "Pocket005")
body.addObject(pocket6)
pocket6.Profile = sketch8
pocket6.Length = 4
pocket6.Reversed = True

sketch9 = doc.addObject("Sketcher::SketchObject", "Sketch008")
body.addObject(sketch9)
sketch9.AttachmentSupport = (doc.XZ_Plane, [""])
sketch9.MapMode = "FlatFace"
sketch9.AttachmentOffset = App.Placement(App.Vector(0, 0, -45), App.Rotation())
sketch9.addGeometry([
    Part.Circle(App.Vector(60, 73, 0), App.Vector(0, 0, 1), 3),
    Part.Circle(App.Vector(37.5, 73, 0), App.Vector(0, 0, 1), 2.5),
    Part.Circle(App.Vector(23.1, 73, 0), App.Vector(0, 0, 1), 3.4),
    Part.Circle(App.Vector(47.5, 73, 0), App.Vector(0, 0, 1), 3),
    Part.Circle(App.Vector(70, 78.5, 0), App.Vector(0, 0, 1), 2.5),
    Part.Circle(App.Vector(70, 67.5, 0), App.Vector(0, 0, 1), 2.5),
], False)
sketch9.addConstraint([
    Sketcher.Constraint("Equal", 0, 3),
    Sketcher.Constraint("Equal", 1, 4),
    Sketcher.Constraint("Equal", 4, 5),
    Sketcher.Constraint("Horizontal", 0, 3, 1, 3),
    Sketcher.Constraint("Horizontal", 1, 3, 2, 3),
    Sketcher.Constraint("Horizontal", 2, 3, 3, 3),
    Sketcher.Constraint("Vertical", 4, 3, 5, 3),
    Sketcher.Constraint("Diameter", 0, 6.0),
    Sketcher.Constraint("Diameter", 1, 5.0),
    Sketcher.Constraint("Diameter", 2, 6.8),
    Sketcher.Constraint("DistanceX", -1, 1, 0, 3, 60.0),
    Sketcher.Constraint("DistanceY", -1, 1, 0, 3, 73.0),
    Sketcher.Constraint("DistanceX", -1, 1, 4, 3, 70.0),
    Sketcher.Constraint("DistanceX", 1, 3, 3, 3, 10.0),
    Sketcher.Constraint("DistanceY", 5, 3, 4, 3, 11.0),
    Sketcher.Constraint("DistanceX", -1, 1, 1, 3, 37.5),
    Sketcher.Constraint("DistanceX", -1, 1, 2, 3, 23.1),
    Sketcher.Constraint("DistanceY", -1, 1, 4, 3, 78.5),
])
pocket7 = doc.addObject("PartDesign::Pocket", "Pocket006")
body.addObject(pocket7)
pocket7.Profile = sketch9
pocket7.Length = 4
pocket7.Reversed = True

sketch10 = doc.addObject("Sketcher::SketchObject", "Sketch009")
body.addObject(sketch10)
sketch10.AttachmentSupport = (doc.XZ_Plane, [""])
sketch10.MapMode = "FlatFace"
sketch10.AttachmentOffset = App.Placement(App.Vector(0, 0, -42.5), App.Rotation())
sketch10.addGeometry([
    Part.LineSegment(App.Vector(47.5, 68.4, 0), App.Vector(51.5, 70.7, 0)),
    Part.LineSegment(App.Vector(51.5, 70.7, 0), App.Vector(51.5, 75.3, 0)),
    Part.LineSegment(App.Vector(51.5, 75.3, 0), App.Vector(47.5, 77.6, 0)),
    Part.LineSegment(App.Vector(47.5, 77.6, 0), App.Vector(43.5, 75.3, 0)),
    Part.LineSegment(App.Vector(43.5, 75.3, 0), App.Vector(43.5, 70.7, 0)),
    Part.LineSegment(App.Vector(43.5, 70.7, 0), App.Vector(47.5, 68.4, 0)),
], False)
sketch10.addConstraint([
    Sketcher.Constraint("Coincident", 0, 2, 1, 1),
    Sketcher.Constraint("Coincident", 1, 2, 2, 1),
    Sketcher.Constraint("Coincident", 2, 2, 3, 1),
    Sketcher.Constraint("Coincident", 3, 2, 4, 1),
    Sketcher.Constraint("Coincident", 4, 2, 5, 1),
    Sketcher.Constraint("Coincident", 5, 2, 0, 1),
    Sketcher.Constraint("Vertical", 1),
    Sketcher.Constraint("Vertical", 4),
    Sketcher.Constraint("Parallel", 0, 3),
    Sketcher.Constraint("Parallel", 2, 5),
    Sketcher.Constraint("Horizontal", 1, 2, 3, 2),
    Sketcher.Constraint("Horizontal", 0, 2, 4, 2),
    Sketcher.Constraint("Vertical", 2, 2, 5, 2),
    Sketcher.Constraint("Angle", 0, Q("30 deg")),
    Sketcher.Constraint("DistanceX", 2, 2, 1, 2, 4.0),
    Sketcher.Constraint("DistanceX", -1, 1, 0, 2, 51.5),
    Sketcher.Constraint("DistanceY", -1, 1, 0, 2, 70.690599),
    Sketcher.Constraint("DistanceY", -1, 1, 1, 2, 75.309401),
])
pocket8 = doc.addObject("PartDesign::Pocket", "Pocket007")
body.addObject(pocket8)
pocket8.Profile = sketch10
pocket8.Length = 1

sketch11 = doc.addObject("Sketcher::SketchObject", "Sketch010")
body.addObject(sketch11)
sketch11.AttachmentSupport = (doc.XZ_Plane, [""])
sketch11.MapMode = "FlatFace"
sketch11.AttachmentOffset = App.Placement(App.Vector(0, 0, -45), App.Rotation())
sketch11.addGeometry([
    Part.LineSegment(App.Vector(58.1, 76.6, 0), App.Vector(68.1, 82, 0)),
    Part.ArcOfCircle(Part.Circle(App.Vector(70, 78.5, 0), App.Vector(0, 0, 1), 4), math.radians(0), math.radians(118)),
    Part.LineSegment(App.Vector(74, 78.5, 0), App.Vector(74, 67.5, 0)),
    Part.ArcOfCircle(Part.Circle(App.Vector(70, 67.5, 0), App.Vector(0, 0, 1), 4), math.radians(-118), math.radians(0)),
    Part.LineSegment(App.Vector(68.1, 64, 0), App.Vector(58.1, 69.4, 0)),
    Part.ArcOfCircle(Part.Circle(App.Vector(60, 73, 0), App.Vector(0, 0, 1), 4.1), math.radians(118), math.radians(242)),
    Part.LineSegment(App.Vector(37.5, 77, 0), App.Vector(47.5, 77, 0)),
    Part.ArcOfCircle(Part.Circle(App.Vector(47.5, 73, 0), App.Vector(0, 0, 1), 4), math.radians(-90), math.radians(90)),
    Part.LineSegment(App.Vector(47.5, 69, 0), App.Vector(37.5, 69, 0)),
    Part.ArcOfCircle(Part.Circle(App.Vector(37.5, 73, 0), App.Vector(0, 0, 1), 4), math.radians(90), math.radians(270)),
], False)
sketch11.addConstraint([
    Sketcher.Constraint("Tangent", 0, 2, 1, 2),
    Sketcher.Constraint("Tangent", 1, 1, 2, 1),
    Sketcher.Constraint("Tangent", 2, 2, 3, 2),
    Sketcher.Constraint("Tangent", 3, 1, 4, 1),
    Sketcher.Constraint("Tangent", 4, 2, 5, 2),
    Sketcher.Constraint("Tangent", 5, 1, 0, 1),
    Sketcher.Constraint("Tangent", 6, 2, 7, 2),
    Sketcher.Constraint("Tangent", 7, 1, 8, 1),
    Sketcher.Constraint("Tangent", 8, 2, 9, 2),
    Sketcher.Constraint("Tangent", 9, 1, 6, 1),
    Sketcher.Constraint("Vertical", 2),
    Sketcher.Constraint("Horizontal", 6),
    Sketcher.Constraint("Horizontal", 8),
    Sketcher.Constraint("Equal", 1, 3),
    Sketcher.Constraint("Equal", 3, 7),
    Sketcher.Constraint("Horizontal", 5, 3, 7, 3),
    Sketcher.Constraint("Vertical", 0, 2, 3, 1),
    Sketcher.Constraint("Radius", 1, 4.0),
    Sketcher.Constraint("DistanceX", 6, 1, 6, 2, 10.0),
    Sketcher.Constraint("DistanceY", 2, 2, 2, 1, 11.0),
    Sketcher.Constraint("DistanceX", -1, 1, 1, 3, 70.0),
    Sketcher.Constraint("DistanceX", -1, 1, 5, 3, 60.0),
    Sketcher.Constraint("DistanceY", -1, 1, 5, 3, 73.0),
    Sketcher.Constraint("DistanceX", -1, 1, 7, 3, 47.5),
    Sketcher.Constraint("Radius", 5, 4.096624),
])
pocket9 = doc.addObject("PartDesign::Pocket", "Pocket008")
body.addObject(pocket9)
pocket9.Profile = sketch11
pocket9.Length = 0.5
pocket9.Reversed = True

sketch12 = doc.addObject("Sketcher::SketchObject", "Sketch011")
body.addObject(sketch12)
sketch12.AttachmentSupport = (doc.YZ_Plane, [""])
sketch12.MapMode = "FlatFace"
sketch12.addGeometry([
    Part.LineSegment(App.Vector(42, -90, 0), App.Vector(-26, -90, 0)),
    Part.LineSegment(App.Vector(-26, -90, 0), App.Vector(-26, -68, 0)),
    Part.LineSegment(App.Vector(-26, -68, 0), App.Vector(42, -68, 0)),
    Part.LineSegment(App.Vector(42, -68, 0), App.Vector(42, -90, 0)),
    Part.LineSegment(App.Vector(42, 71, 0), App.Vector(-37, 71, 0)),
    Part.LineSegment(App.Vector(-37, 71, 0), App.Vector(-37, 90, 0)),
    Part.LineSegment(App.Vector(-37, 90, 0), App.Vector(42, 90, 0)),
    Part.LineSegment(App.Vector(42, 90, 0), App.Vector(42, 71, 0)),
], False)
sketch12.addConstraint([
    Sketcher.Constraint("Coincident", 0, 2, 1, 1),
    Sketcher.Constraint("Coincident", 1, 2, 2, 1),
    Sketcher.Constraint("Coincident", 2, 2, 3, 1),
    Sketcher.Constraint("Coincident", 3, 2, 0, 1),
    Sketcher.Constraint("Coincident", 4, 2, 5, 1),
    Sketcher.Constraint("Coincident", 5, 2, 6, 1),
    Sketcher.Constraint("Coincident", 6, 2, 7, 1),
    Sketcher.Constraint("Coincident", 7, 2, 4, 1),
    Sketcher.Constraint("Horizontal", 0),
    Sketcher.Constraint("Vertical", 1),
    Sketcher.Constraint("Horizontal", 2),
    Sketcher.Constraint("Vertical", 3),
    Sketcher.Constraint("Horizontal", 4),
    Sketcher.Constraint("Vertical", 5),
    Sketcher.Constraint("Horizontal", 6),
    Sketcher.Constraint("Vertical", 7),
    Sketcher.Constraint("Symmetric", 3, 2, 6, 2, -1),
    Sketcher.Constraint("DistanceY", 0, 2, -1, 1, 90.0),
    Sketcher.Constraint("DistanceX", -1, 1, 2, 2, 42.5),
    Sketcher.Constraint("DistanceX", 0, 2, 0, 1, 68.530717),
    Sketcher.Constraint("DistanceX", 4, 2, 4, 1, 79.190643),
    Sketcher.Constraint("DistanceY", 1, 1, 1, 2, 21.552052),
    Sketcher.Constraint("DistanceY", 5, 1, 5, 2, 18.933825),
])
pocket10 = doc.addObject("PartDesign::Pocket", "Pocket009")
body.addObject(pocket10)
pocket10.Profile = sketch12
pocket10.Type = "ThroughAll"
pocket10.Reversed = True

sketch13 = doc.addObject("Sketcher::SketchObject", "Sketch012")
body.addObject(sketch13)
sketch13.AttachmentSupport = (doc.XZ_Plane, [""])
sketch13.MapMode = "FlatFace"
sketch13.AttachmentOffset = App.Placement(App.Vector(0, 0, -42.5), App.Rotation())
sketch13.addGeometry([
    Part.Circle(App.Vector(191.4, -82, 0), App.Vector(0, 0, 1), 1.8),
    Part.Circle(App.Vector(8.6, -82, 0), App.Vector(0, 0, 1), 1.8),
    Part.Circle(App.Vector(8.6, 82, 0), App.Vector(0, 0, 1), 1.8),
    Part.Circle(App.Vector(191.4, 82, 0), App.Vector(0, 0, 1), 1.8),
], False)
sketch13.addConstraint([
    Sketcher.Constraint("Equal", 0, 1),
    Sketcher.Constraint("Equal", 1, 2),
    Sketcher.Constraint("Equal", 2, 3),
    Sketcher.Constraint("Symmetric", 1, 3, 2, 3, -1),
    Sketcher.Constraint("Symmetric", 0, 3, 3, 3, -1),
    Sketcher.Constraint("Horizontal", 0, 3, 1, 3),
    Sketcher.Constraint("Diameter", 0, 3.5),
    Sketcher.Constraint("DistanceY", 0, 3, -1, 1, 82.0),
    Sketcher.Constraint("DistanceX", -1, 1, 0, 3, 191.36),
    Sketcher.Constraint("DistanceX", -1, 1, 1, 3, 8.64),
])
pocket11 = doc.addObject("PartDesign::Pocket", "Pocket010")
body.addObject(pocket11)
pocket11.Profile = sketch13
pocket11.Type = "ThroughAll"

sketch14 = doc.addObject("Sketcher::SketchObject", "Sketch013")
body.addObject(sketch14)
sketch14.AttachmentSupport = (doc.XY_Plane, [""])
sketch14.MapMode = "FlatFace"
sketch14.AttachmentOffset = App.Placement(App.Vector(0, 0, -60), App.Rotation())
sketch14.addGeometry([
    Part.LineSegment(App.Vector(107, 42, 0), App.Vector(107, 34, 0)),
    Part.LineSegment(App.Vector(107, 34, 0), App.Vector(11, 34, 0)),
    Part.LineSegment(App.Vector(11, 34, 0), App.Vector(11, 42, 0)),
    Part.LineSegment(App.Vector(11, 42, 0), App.Vector(107, 42, 0)),
], False)
sketch14.addConstraint([
    Sketcher.Constraint("Coincident", 0, 2, 1, 1),
    Sketcher.Constraint("Coincident", 1, 2, 2, 1),
    Sketcher.Constraint("Coincident", 2, 2, 3, 1),
    Sketcher.Constraint("Coincident", 3, 2, 0, 1),
    Sketcher.Constraint("Vertical", 0),
    Sketcher.Constraint("Horizontal", 1),
    Sketcher.Constraint("Vertical", 2),
    Sketcher.Constraint("Horizontal", 3),
    Sketcher.Constraint("DistanceX", 1, 2, 1, 1, 95.6),
    Sketcher.Constraint("DistanceY", 0, 2, 0, 1, 8.5),
    Sketcher.Constraint("DistanceY", -1, 1, 0, 2, 34.0),
    Sketcher.Constraint("DistanceX", -1, 1, 1, 2, 11.0),
])
pad3 = doc.addObject("PartDesign::Pad", "Pad002")
body.addObject(pad3)
pad3.Profile = sketch14
pad3.Length = 5
pad3.Reversed = True

sketch15 = doc.addObject("Sketcher::SketchObject", "Sketch014")
body.addObject(sketch15)
sketch15.AttachmentSupport = (doc.YZ_Plane, [""])
sketch15.MapMode = "FlatFace"
sketch15.AttachmentOffset = App.Placement(App.Vector(0, 0, 11), App.Rotation())
sketch15.addGeometry([
    Part.LineSegment(App.Vector(42, -65, 0), App.Vector(34, -65, 0)),
    Part.LineSegment(App.Vector(34, -65, 0), App.Vector(34, 15, 0)),
    Part.LineSegment(App.Vector(34, 15, 0), App.Vector(42, 15, 0)),
    Part.LineSegment(App.Vector(42, 15, 0), App.Vector(42, -65, 0)),
], False)
sketch15.addConstraint([
    Sketcher.Constraint("Coincident", 0, 2, 1, 1),
    Sketcher.Constraint("Coincident", 1, 2, 2, 1),
    Sketcher.Constraint("Coincident", 2, 2, 3, 1),
    Sketcher.Constraint("Coincident", 3, 2, 0, 1),
    Sketcher.Constraint("Horizontal", 0),
    Sketcher.Constraint("Vertical", 1),
    Sketcher.Constraint("Horizontal", 2),
    Sketcher.Constraint("Vertical", 3),
    Sketcher.Constraint("DistanceX", 0, 2, 0, 1, 8.5),
    Sketcher.Constraint("DistanceX", -1, 1, 0, 2, 34.0),
    Sketcher.Constraint("DistanceY", 0, 2, -1, 1, 65.0),
    Sketcher.Constraint("DistanceY", 1, 1, 1, 2, 79.935639),
])
pad4 = doc.addObject("PartDesign::Pad", "Pad003")
body.addObject(pad4)
pad4.Profile = sketch15
pad4.Length = 8
pad4.Reversed = True

sketch16 = doc.addObject("Sketcher::SketchObject", "Sketch015")
body.addObject(sketch16)
sketch16.AttachmentSupport = (doc.YZ_Plane, [""])
sketch16.MapMode = "FlatFace"
sketch16.AttachmentOffset = App.Placement(App.Vector(0, 0, 78), App.Rotation())
sketch16.addGeometry([
    Part.LineSegment(App.Vector(42.5, 84.5, 0), App.Vector(41, 83, 0)),
    Part.LineSegment(App.Vector(41, 83, 0), App.Vector(41, 76, 0)),
    Part.LineSegment(App.Vector(41, 76, 0), App.Vector(44, 76, 0)),
    Part.LineSegment(App.Vector(44, 76, 0), App.Vector(44, 80, 0)),
    Part.LineSegment(App.Vector(44, 80, 0), App.Vector(45, 81, 0)),
    Part.LineSegment(App.Vector(45, 81, 0), App.Vector(42.5, 81, 0)),
    Part.LineSegment(App.Vector(42.5, 81, 0), App.Vector(42.5, 84.5, 0)),
], False)
sketch16.addConstraint([
    Sketcher.Constraint("Coincident", 0, 2, 1, 1),
    Sketcher.Constraint("Coincident", 1, 2, 2, 1),
    Sketcher.Constraint("Coincident", 2, 2, 3, 1),
    Sketcher.Constraint("Coincident", 3, 2, 4, 1),
    Sketcher.Constraint("Coincident", 4, 2, 5, 1),
    Sketcher.Constraint("Coincident", 5, 2, 6, 1),
    Sketcher.Constraint("Coincident", 6, 2, 0, 1),
    Sketcher.Constraint("Vertical", 1),
    Sketcher.Constraint("Horizontal", 2),
    Sketcher.Constraint("Vertical", 3),
    Sketcher.Constraint("Horizontal", 5),
    Sketcher.Constraint("Vertical", 6),
    Sketcher.Constraint("Parallel", 0, 4),
    Sketcher.Constraint("DistanceX", 2, 1, 2, 2, 3.0),
    Sketcher.Constraint("DistanceY", 1, 2, 1, 1, 7.0),
    Sketcher.Constraint("DistanceY", 3, 1, 3, 2, 4.0),
    Sketcher.Constraint("Angle", 0, Q("-135 deg")),
    Sketcher.Constraint("DistanceX", 5, 2, 5, 1, 2.5),
    Sketcher.Constraint("DistanceX", -1, 1, 0, 2, 41.0),
    Sketcher.Constraint("DistanceY", -1, 1, 0, 2, 83.0),
    Sketcher.Constraint("DistanceX", -1, 1, 4, 2, 45.0),
])
pad5 = doc.addObject("PartDesign::Pad", "Pad004")
body.addObject(pad5)
pad5.Profile = sketch16
pad5.Length = 107

sketch17 = doc.addObject("Sketcher::SketchObject", "Sketch016")
body.addObject(sketch17)
sketch17.AttachmentSupport = (doc.XZ_Plane, [""])
sketch17.MapMode = "FlatFace"
sketch17.AttachmentOffset = App.Placement(App.Vector(0, 0, -45), App.Rotation())
sketch17.addGeometry([
    Part.LineSegment(App.Vector(181.9, -74.1, 0), App.Vector(185.9, -76.4, 0)),
    Part.LineSegment(App.Vector(185.9, -76.4, 0), App.Vector(185.9, -81.1, 0)),
    Part.LineSegment(App.Vector(185.9, -81.1, 0), App.Vector(181.9, -83.4, 0)),
    Part.LineSegment(App.Vector(181.9, -83.4, 0), App.Vector(177.9, -81.1, 0)),
    Part.LineSegment(App.Vector(177.9, -81.1, 0), App.Vector(177.9, -76.4, 0)),
    Part.LineSegment(App.Vector(177.9, -76.4, 0), App.Vector(181.9, -74.1, 0)),
    Part.Circle(App.Vector(181.9, -78.8, 0), App.Vector(0, 0, 1), 3),
], False)
sketch17.addConstraint([
    Sketcher.Constraint("Coincident", 0, 2, 1, 1),
    Sketcher.Constraint("Coincident", 1, 2, 2, 1),
    Sketcher.Constraint("Coincident", 2, 2, 3, 1),
    Sketcher.Constraint("Coincident", 3, 2, 4, 1),
    Sketcher.Constraint("Coincident", 4, 2, 5, 1),
    Sketcher.Constraint("Coincident", 5, 2, 0, 1),
    Sketcher.Constraint("Vertical", 1),
    Sketcher.Constraint("Vertical", 4),
    Sketcher.Constraint("Parallel", 0, 3),
    Sketcher.Constraint("Parallel", 2, 5),
    Sketcher.Constraint("Horizontal", 1, 2, 3, 2),
    Sketcher.Constraint("Horizontal", 0, 2, 4, 2),
    Sketcher.Constraint("Vertical", 6, 3, 2, 2),
    Sketcher.Constraint("Vertical", 2, 2, 5, 2),
    Sketcher.Constraint("Diameter", 6, 6.0),
    Sketcher.Constraint("Angle", 0, Q("-30 deg")),
    Sketcher.Constraint("DistanceX", 6, 3, 0, 2, 4.0),
    Sketcher.Constraint("DistanceY", 6, 3, -1, 1, 78.75),
    Sketcher.Constraint("DistanceX", -1, 1, 6, 3, 181.925),
    Sketcher.Constraint("DistanceY", 0, 2, -1, 1, 76.440599),
    Sketcher.Constraint("DistanceY", 1, 2, -1, 1, 81.059401),
])
pad6 = doc.addObject("PartDesign::Pad", "Pad005")
body.addObject(pad6)
pad6.Profile = sketch17
pad6.Length = 1.5
doc.recompute()

linearpattern = doc.addObject("PartDesign::LinearPattern", "LinearPattern")
body.addObject(linearpattern)
linearpattern.Originals = [pad6]
linearpattern.Direction = (doc.X_Axis, [""])
linearpattern.Mode = "offset"
linearpattern.Offset = 12
linearpattern.Occurrences = 8
linearpattern.Reversed = True
body.Tip = linearpattern
doc.recompute()

chamfer = doc.addObject("PartDesign::Chamfer", "Chamfer")
body.addObject(chamfer)
chamfer.Base = (linearpattern, edges_at(linearpattern, [
    (0, 43.75, 90),
    (0, 45, 0),
    (0, 43.75, -90),
    (100, 45, 90),
    (100, 45, -90),
    (200, 43.75, -90),
    (200, 45, 0),
    (200, 43.75, 90),
]))
chamfer.Size = 1

doc.recompute()
